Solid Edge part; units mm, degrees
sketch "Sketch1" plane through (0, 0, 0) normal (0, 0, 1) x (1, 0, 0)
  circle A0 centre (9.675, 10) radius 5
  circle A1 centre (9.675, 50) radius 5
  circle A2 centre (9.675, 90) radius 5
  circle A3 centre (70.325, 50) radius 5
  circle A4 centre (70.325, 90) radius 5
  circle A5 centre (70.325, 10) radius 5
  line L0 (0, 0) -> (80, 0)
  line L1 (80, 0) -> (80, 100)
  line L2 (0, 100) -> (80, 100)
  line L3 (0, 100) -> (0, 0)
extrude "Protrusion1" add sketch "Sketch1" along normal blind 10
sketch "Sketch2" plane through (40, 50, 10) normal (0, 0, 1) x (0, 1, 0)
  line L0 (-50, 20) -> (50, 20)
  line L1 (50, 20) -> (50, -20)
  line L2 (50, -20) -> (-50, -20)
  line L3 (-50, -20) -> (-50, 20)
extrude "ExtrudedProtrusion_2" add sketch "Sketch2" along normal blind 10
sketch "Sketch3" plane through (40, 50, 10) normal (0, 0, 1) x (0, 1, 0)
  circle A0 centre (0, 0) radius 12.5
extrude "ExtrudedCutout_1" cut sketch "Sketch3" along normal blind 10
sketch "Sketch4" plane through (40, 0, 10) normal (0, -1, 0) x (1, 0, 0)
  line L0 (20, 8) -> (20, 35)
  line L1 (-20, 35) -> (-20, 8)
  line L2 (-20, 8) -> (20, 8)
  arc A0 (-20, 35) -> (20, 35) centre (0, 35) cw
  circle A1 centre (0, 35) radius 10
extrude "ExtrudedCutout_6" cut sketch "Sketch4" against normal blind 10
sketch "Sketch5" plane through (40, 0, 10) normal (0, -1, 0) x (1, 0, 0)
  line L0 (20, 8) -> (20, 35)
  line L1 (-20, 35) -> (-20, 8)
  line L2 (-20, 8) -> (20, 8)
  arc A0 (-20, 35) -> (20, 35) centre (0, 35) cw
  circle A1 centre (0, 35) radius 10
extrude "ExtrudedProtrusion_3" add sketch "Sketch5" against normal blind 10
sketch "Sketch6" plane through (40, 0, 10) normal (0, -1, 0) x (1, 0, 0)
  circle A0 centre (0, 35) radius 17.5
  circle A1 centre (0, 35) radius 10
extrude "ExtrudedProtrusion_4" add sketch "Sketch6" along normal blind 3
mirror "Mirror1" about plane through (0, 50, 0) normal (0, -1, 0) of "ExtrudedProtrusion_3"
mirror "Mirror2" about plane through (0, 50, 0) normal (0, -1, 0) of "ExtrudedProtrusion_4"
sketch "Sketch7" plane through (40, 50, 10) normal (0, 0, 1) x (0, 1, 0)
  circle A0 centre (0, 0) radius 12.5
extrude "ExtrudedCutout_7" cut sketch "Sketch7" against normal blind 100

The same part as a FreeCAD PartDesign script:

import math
import FreeCAD as App
import Part
import Sketcher
from FreeCAD import Vector
Q = App.Units.Quantity


def add_polygon(sketch, points):
    """Adds a closed chain of lines whose ends are joined by coincident constraints."""
    first, n = sketch.GeometryCount, len(points)
    for a, b in zip(points, points[1:] + points[:1]):
        sketch.addGeometry(Part.LineSegment(App.Vector(*a, 0), App.Vector(*b, 0)), False)
    for i in range(n):
        sketch.addConstraint(Sketcher.Constraint("Coincident", first + i, 2, first + (i + 1) % n, 1))

doc = App.newDocument("Part")
body = doc.addObject("PartDesign::Body", "Body")

# Sketch on XY plane
sketch1 = doc.addObject("Sketcher::SketchObject", "Sketch")
body.addObject(sketch1)
sketch1.AttachmentSupport = (doc.XY_Plane, [""])
sketch1.MapMode = "FlatFace"
add_polygon(sketch1, [(0, 100), (0, 0), (80, 0), (80, 100)])  # lines 0-3
sketch1.addGeometry(Part.Circle(Vector(10, 10, 0), Vector(0, 0, 1), 5), False)  # 4
sketch1.addGeometry(Part.Circle(Vector(70, 10, 0), Vector(0, 0, 1), 5), False)  # 5
sketch1.addGeometry(Part.Circle(Vector(10, 50, 0), Vector(0, 0, 1), 5), False)  # 6
sketch1.addGeometry(Part.Circle(Vector(10, 90, 0), Vector(0, 0, 1), 5), False)  # 7
sketch1.addGeometry(Part.Circle(Vector(70, 50, 0), Vector(0, 0, 1), 5), False)  # 8
sketch1.addGeometry(Part.Circle(Vector(70, 90, 0), Vector(0, 0, 1), 5), False)  # 9
sketch1.addConstraint(Sketcher.Constraint("Vertical", 0))
sketch1.addConstraint(Sketcher.Constraint("Horizontal", 1))
sketch1.addConstraint(Sketcher.Constraint("Vertical", 2))
sketch1.addConstraint(Sketcher.Constraint("Horizontal", 3))
sketch1.addConstraint(Sketcher.Constraint("Coincident", 0, 2, -1, 1))
sketch1.addConstraint(Sketcher.Constraint("Equal", 4, 5))
sketch1.addConstraint(Sketcher.Constraint("Equal", 5, 6))
sketch1.addConstraint(Sketcher.Constraint("Equal", 6, 7))
sketch1.addConstraint(Sketcher.Constraint("Equal", 7, 8))
sketch1.addConstraint(Sketcher.Constraint("Equal", 8, 9))
sketch1.addConstraint(Sketcher.Constraint("Horizontal", 4, 3, 5, 3))
sketch1.addConstraint(Sketcher.Constraint("Horizontal", 6, 3, 8, 3))
sketch1.addConstraint(Sketcher.Constraint("Horizontal", 7, 3, 9, 3))
sketch1.addConstraint(Sketcher.Constraint("Vertical", 4, 3, 6, 3))
sketch1.addConstraint(Sketcher.Constraint("Vertical", 6, 3, 7, 3))
sketch1.addConstraint(Sketcher.Constraint("Vertical", 5, 3, 8, 3))
sketch1.addConstraint(Sketcher.Constraint("Vertical", 8, 3, 9, 3))
sketch1.addConstraint(Sketcher.Constraint("Diameter", 4, Q("10 mm")))
sketch1.addConstraint(Sketcher.Constraint("DistanceX", 1, 1, 1, 2, Q("80 mm")))
sketch1.addConstraint(Sketcher.Constraint("DistanceY", 0, 2, 0, 1, Q("100 mm")))
sketch1.addConstraint(Sketcher.Constraint("DistanceY", -1, 1, 4, 3, Q("10 mm")))
sketch1.addConstraint(Sketcher.Constraint("DistanceY", -1, 1, 6, 3, Q("50 mm")))
sketch1.addConstraint(Sketcher.Constraint("DistanceY", -1, 1, 7, 3, Q("90 mm")))
sketch1.addConstraint(Sketcher.Constraint("DistanceX", 4, 3, 5, 3, Q("60.65 mm")))
sketch1.addConstraint(Sketcher.Constraint("DistanceX", -1, 1, 4, 3, Q("9.675 mm")))
pad1 = doc.addObject("PartDesign::Pad", "Pad")
body.addObject(pad1)
pad1.Profile = sketch1
pad1.Length = 10

# Sketch on XY plane
sketch2 = doc.addObject("Sketcher::SketchObject", "Sketch001")
body.addObject(sketch2)
sketch2.AttachmentSupport = (doc.XY_Plane, [""])
sketch2.MapMode = "FlatFace"
sketch2.AttachmentOffset = App.Placement(Vector(0, 0, 10), App.Rotation())
add_polygon(sketch2, [(20, 100), (20, 0), (60, 0), (60, 100)])  # lines 0-3
sketch2.addConstraint(Sketcher.Constraint("Vertical", 0))
sketch2.addConstraint(Sketcher.Constraint("Horizontal", 1))
sketch2.addConstraint(Sketcher.Constraint("Vertical", 2))
sketch2.addConstraint(Sketcher.Constraint("Horizontal", 3))
sketch2.addConstraint(Sketcher.Constraint("PointOnObject", 0, 2, -1))
sketch2.addConstraint(Sketcher.Constraint("DistanceX", 1, 1, 1, 2, Q("40 mm")))
sketch2.addConstraint(Sketcher.Constraint("DistanceY", 0, 2, 0, 1, Q("100 mm")))
sketch2.addConstraint(Sketcher.Constraint("DistanceX", -1, 1, 0, 2, Q("20 mm")))
pad2 = doc.addObject("PartDesign::Pad", "Pad001")
body.addObject(pad2)
pad2.Profile = sketch2
pad2.Length = 10

# Sketch on XY plane
sketch3 = doc.addObject("Sketcher::SketchObject", "Sketch002")
body.addObject(sketch3)
sketch3.AttachmentSupport = (doc.XY_Plane, [""])
sketch3.MapMode = "FlatFace"
sketch3.AttachmentOffset = App.Placement(Vector(0, 0, 10), App.Rotation())
sketch3.addGeometry(Part.Circle(Vector(40, 50, 0), Vector(0, 0, 1), 12), False)
sketch3.addConstraint(Sketcher.Constraint("Diameter", 0, Q("25 mm")))
sketch3.addConstraint(Sketcher.Constraint("DistanceX", -1, 1, 0, 3, Q("40 mm")))
sketch3.addConstraint(Sketcher.Constraint("DistanceY", -1, 1, 0, 3, Q("50 mm")))
pocket1 = doc.addObject("PartDesign::Pocket", "Pocket")
body.addObject(pocket1)
pocket1.Profile = sketch3
pocket1.Length = 10
pocket1.Reversed = True

# Sketch on XZ plane
sketch4 = doc.addObject("Sketcher::SketchObject", "Sketch003")
body.addObject(sketch4)
sketch4.AttachmentSupport = (doc.XZ_Plane, [""])
sketch4.MapMode = "FlatFace"
sketch4.addGeometry(Part.LineSegment(Vector(20, 18, 0), Vector(60, 18, 0)), False)
sketch4.addGeometry(Part.LineSegment(Vector(60, 18, 0), Vector(60, 45, 0)), False)
sketch4.addGeometry(Part.ArcOfCircle(Part.Circle(Vector(40, 45, 0), Vector(0, 0, 1), 20), math.radians(0), math.radians(180)), False)
sketch4.addGeometry(Part.LineSegment(Vector(20, 45, 0), Vector(20, 18, 0)), False)
sketch4.addGeometry(Part.Circle(Vector(40, 45, 0), Vector(0, 0, 1), 10), False)
sketch4.addConstraint(Sketcher.Constraint("Coincident", 0, 2, 1, 1))
sketch4.addConstraint(Sketcher.Constraint("Tangent", 1, 2, 2, 1))
sketch4.addConstraint(Sketcher.Constraint("Tangent", 2, 2, 3, 1))
sketch4.addConstraint(Sketcher.Constraint("Coincident", 3, 2, 0, 1))
sketch4.addConstraint(Sketcher.Constraint("Horizontal", 0))
sketch4.addConstraint(Sketcher.Constraint("Vertical", 1))
sketch4.addConstraint(Sketcher.Constraint("Vertical", 3))
sketch4.addConstraint(Sketcher.Constraint("Coincident", 4, 3, 2, 3))
sketch4.addConstraint(Sketcher.Constraint("Diameter", 4, Q("20 mm")))
sketch4.addConstraint(Sketcher.Constraint("Radius", 2, Q("20 mm")))
sketch4.addConstraint(Sketcher.Constraint("DistanceY", 1, 1, 1, 2, Q("27 mm")))
sketch4.addConstraint(Sketcher.Constraint("DistanceX", -1, 1, 2, 3, Q("40 mm")))
sketch4.addConstraint(Sketcher.Constraint("DistanceY", -1, 1, 2, 3, Q("45 mm")))
pocket2 = doc.addObject("PartDesign::Pocket", "Pocket001")
body.addObject(pocket2)
pocket2.Profile = sketch4
pocket2.Length = 10

# Sketch on XZ plane
sketch5 = doc.addObject("Sketcher::SketchObject", "Sketch004")
body.addObject(sketch5)
sketch5.AttachmentSupport = (doc.XZ_Plane, [""])
sketch5.MapMode = "FlatFace"
sketch5.addGeometry(Part.LineSegment(Vector(20, 18, 0), Vector(60, 18, 0)), False)
sketch5.addGeometry(Part.LineSegment(Vector(60, 18, 0), Vector(60, 45, 0)), False)
sketch5.addGeometry(Part.ArcOfCircle(Part.Circle(Vector(40, 45, 0), Vector(0, 0, 1), 20), math.radians(0), math.radians(180)), False)
sketch5.addGeometry(Part.LineSegment(Vector(20, 45, 0), Vector(20, 18, 0)), False)
sketch5.addGeometry(Part.Circle(Vector(40, 45, 0), Vector(0, 0, 1), 10), False)
sketch5.addConstraint(Sketcher.Constraint("Coincident", 0, 2, 1, 1))
sketch5.addConstraint(Sketcher.Constraint("Tangent", 1, 2, 2, 1))
sketch5.addConstraint(Sketcher.Constraint("Tangent", 2, 2, 3, 1))
sketch5.addConstraint(Sketcher.Constraint("Coincident", 3, 2, 0, 1))
sketch5.addConstraint(Sketcher.Constraint("Horizontal", 0))
sketch5.addConstraint(Sketcher.Constraint("Vertical", 1))
sketch5.addConstraint(Sketcher.Constraint("Vertical", 3))
sketch5.addConstraint(Sketcher.Constraint("Coincident", 4, 3, 2, 3))
sketch5.addConstraint(Sketcher.Constraint("Diameter", 4, Q("20 mm")))
sketch5.addConstraint(Sketcher.Constraint("Radius", 2, Q("20 mm")))
sketch5.addConstraint(Sketcher.Constraint("DistanceY", 1, 1, 1, 2, Q("27 mm")))
sketch5.addConstraint(Sketcher.Constraint("DistanceX", -1, 1, 2, 3, Q("40 mm")))
sketch5.addConstraint(Sketcher.Constraint("DistanceY", -1, 1, 2, 3, Q("45 mm")))
pad3 = doc.addObject("PartDesign::Pad", "Pad002")
body.addObject(pad3)
pad3.Profile = sketch5
pad3.Length = 10
pad3.Reversed = True

# Sketch on XZ plane
sketch6 = doc.addObject("Sketcher::SketchObject", "Sketch005")
body.addObject(sketch6)
sketch6.AttachmentSupport = (doc.XZ_Plane, [""])
sketch6.MapMode = "FlatFace"
sketch6.addGeometry(Part.Circle(Vector(40, 45, 0), Vector(0, 0, 1), 18), False)
sketch6.addGeometry(Part.Circle(Vector(40, 45, 0), Vector(0, 0, 1), 10), False)
sketch6.addConstraint(Sketcher.Constraint("Coincident", 1, 3, 0, 3))
sketch6.addConstraint(Sketcher.Constraint("Diameter", 0, Q("35 mm")))
sketch6.addConstraint(Sketcher.Constraint("Diameter", 1, Q("20 mm")))
sketch6.addConstraint(Sketcher.Constraint("DistanceX", -1, 1, 0, 3, Q("40 mm")))
sketch6.addConstraint(Sketcher.Constraint("DistanceY", -1, 1, 0, 3, Q("45 mm")))
pad4 = doc.addObject("PartDesign::Pad", "Pad003")
body.addObject(pad4)
pad4.Profile = sketch6
pad4.Length = 3
doc.recompute()

datumplane = doc.addObject("PartDesign::Plane", "DatumPlane")
body.addObject(datumplane)
datumplane.AttachmentSupport = (doc.XZ_Plane, [""])
datumplane.MapMode = "FlatFace"
datumplane.AttachmentOffset = App.Placement(Vector(0, 0, -50), App.Rotation())
mirrored = doc.addObject("PartDesign::Mirrored", "Mirrored")
body.addObject(mirrored)
mirrored.Originals = [pad3]
mirrored.MirrorPlane = (datumplane, [""])
body.Tip = mirrored
doc.recompute()

datumplane2 = doc.addObject("PartDesign::Plane", "DatumPlane001")
body.addObject(datumplane2)
datumplane2.AttachmentSupport = (doc.XZ_Plane, [""])
datumplane2.MapMode = "FlatFace"
datumplane2.AttachmentOffset = App.Placement(Vector(0, 0, -50), App.Rotation())
mirrored2 = doc.addObject("PartDesign::Mirrored", "Mirrored001")
body.addObject(mirrored2)
mirrored2.Originals = [pad4]
mirrored2.MirrorPlane = (datumplane2, [""])
body.Tip = mirrored2

# Sketch on XY plane
sketch7 = doc.addObject("Sketcher::SketchObject", "Sketch006")
body.addObject(sketch7)
sketch7.AttachmentSupport = (doc.XY_Plane, [""])
sketch7.MapMode = "FlatFace"
sketch7.AttachmentOffset = App.Placement(Vector(0, 0, 10), App.Rotation())
sketch7.addGeometry(Part.Circle(Vector(40, 50, 0), Vector(0, 0, 1), 12), False)
sketch7.addConstraint(Sketcher.Constraint("Diameter", 0, Q("25 mm")))
sketch7.addConstraint(Sketcher.Constraint("DistanceX", -1, 1, 0, 3, Q("40 mm")))
sketch7.addConstraint(Sketcher.Constraint("DistanceY", -1, 1, 0, 3, Q("50 mm")))
pocket3 = doc.addObject("PartDesign::Pocket", "Pocket002")
body.addObject(pocket3)
pocket3.Profile = sketch7
pocket3.Length = 100

doc.recompute()
